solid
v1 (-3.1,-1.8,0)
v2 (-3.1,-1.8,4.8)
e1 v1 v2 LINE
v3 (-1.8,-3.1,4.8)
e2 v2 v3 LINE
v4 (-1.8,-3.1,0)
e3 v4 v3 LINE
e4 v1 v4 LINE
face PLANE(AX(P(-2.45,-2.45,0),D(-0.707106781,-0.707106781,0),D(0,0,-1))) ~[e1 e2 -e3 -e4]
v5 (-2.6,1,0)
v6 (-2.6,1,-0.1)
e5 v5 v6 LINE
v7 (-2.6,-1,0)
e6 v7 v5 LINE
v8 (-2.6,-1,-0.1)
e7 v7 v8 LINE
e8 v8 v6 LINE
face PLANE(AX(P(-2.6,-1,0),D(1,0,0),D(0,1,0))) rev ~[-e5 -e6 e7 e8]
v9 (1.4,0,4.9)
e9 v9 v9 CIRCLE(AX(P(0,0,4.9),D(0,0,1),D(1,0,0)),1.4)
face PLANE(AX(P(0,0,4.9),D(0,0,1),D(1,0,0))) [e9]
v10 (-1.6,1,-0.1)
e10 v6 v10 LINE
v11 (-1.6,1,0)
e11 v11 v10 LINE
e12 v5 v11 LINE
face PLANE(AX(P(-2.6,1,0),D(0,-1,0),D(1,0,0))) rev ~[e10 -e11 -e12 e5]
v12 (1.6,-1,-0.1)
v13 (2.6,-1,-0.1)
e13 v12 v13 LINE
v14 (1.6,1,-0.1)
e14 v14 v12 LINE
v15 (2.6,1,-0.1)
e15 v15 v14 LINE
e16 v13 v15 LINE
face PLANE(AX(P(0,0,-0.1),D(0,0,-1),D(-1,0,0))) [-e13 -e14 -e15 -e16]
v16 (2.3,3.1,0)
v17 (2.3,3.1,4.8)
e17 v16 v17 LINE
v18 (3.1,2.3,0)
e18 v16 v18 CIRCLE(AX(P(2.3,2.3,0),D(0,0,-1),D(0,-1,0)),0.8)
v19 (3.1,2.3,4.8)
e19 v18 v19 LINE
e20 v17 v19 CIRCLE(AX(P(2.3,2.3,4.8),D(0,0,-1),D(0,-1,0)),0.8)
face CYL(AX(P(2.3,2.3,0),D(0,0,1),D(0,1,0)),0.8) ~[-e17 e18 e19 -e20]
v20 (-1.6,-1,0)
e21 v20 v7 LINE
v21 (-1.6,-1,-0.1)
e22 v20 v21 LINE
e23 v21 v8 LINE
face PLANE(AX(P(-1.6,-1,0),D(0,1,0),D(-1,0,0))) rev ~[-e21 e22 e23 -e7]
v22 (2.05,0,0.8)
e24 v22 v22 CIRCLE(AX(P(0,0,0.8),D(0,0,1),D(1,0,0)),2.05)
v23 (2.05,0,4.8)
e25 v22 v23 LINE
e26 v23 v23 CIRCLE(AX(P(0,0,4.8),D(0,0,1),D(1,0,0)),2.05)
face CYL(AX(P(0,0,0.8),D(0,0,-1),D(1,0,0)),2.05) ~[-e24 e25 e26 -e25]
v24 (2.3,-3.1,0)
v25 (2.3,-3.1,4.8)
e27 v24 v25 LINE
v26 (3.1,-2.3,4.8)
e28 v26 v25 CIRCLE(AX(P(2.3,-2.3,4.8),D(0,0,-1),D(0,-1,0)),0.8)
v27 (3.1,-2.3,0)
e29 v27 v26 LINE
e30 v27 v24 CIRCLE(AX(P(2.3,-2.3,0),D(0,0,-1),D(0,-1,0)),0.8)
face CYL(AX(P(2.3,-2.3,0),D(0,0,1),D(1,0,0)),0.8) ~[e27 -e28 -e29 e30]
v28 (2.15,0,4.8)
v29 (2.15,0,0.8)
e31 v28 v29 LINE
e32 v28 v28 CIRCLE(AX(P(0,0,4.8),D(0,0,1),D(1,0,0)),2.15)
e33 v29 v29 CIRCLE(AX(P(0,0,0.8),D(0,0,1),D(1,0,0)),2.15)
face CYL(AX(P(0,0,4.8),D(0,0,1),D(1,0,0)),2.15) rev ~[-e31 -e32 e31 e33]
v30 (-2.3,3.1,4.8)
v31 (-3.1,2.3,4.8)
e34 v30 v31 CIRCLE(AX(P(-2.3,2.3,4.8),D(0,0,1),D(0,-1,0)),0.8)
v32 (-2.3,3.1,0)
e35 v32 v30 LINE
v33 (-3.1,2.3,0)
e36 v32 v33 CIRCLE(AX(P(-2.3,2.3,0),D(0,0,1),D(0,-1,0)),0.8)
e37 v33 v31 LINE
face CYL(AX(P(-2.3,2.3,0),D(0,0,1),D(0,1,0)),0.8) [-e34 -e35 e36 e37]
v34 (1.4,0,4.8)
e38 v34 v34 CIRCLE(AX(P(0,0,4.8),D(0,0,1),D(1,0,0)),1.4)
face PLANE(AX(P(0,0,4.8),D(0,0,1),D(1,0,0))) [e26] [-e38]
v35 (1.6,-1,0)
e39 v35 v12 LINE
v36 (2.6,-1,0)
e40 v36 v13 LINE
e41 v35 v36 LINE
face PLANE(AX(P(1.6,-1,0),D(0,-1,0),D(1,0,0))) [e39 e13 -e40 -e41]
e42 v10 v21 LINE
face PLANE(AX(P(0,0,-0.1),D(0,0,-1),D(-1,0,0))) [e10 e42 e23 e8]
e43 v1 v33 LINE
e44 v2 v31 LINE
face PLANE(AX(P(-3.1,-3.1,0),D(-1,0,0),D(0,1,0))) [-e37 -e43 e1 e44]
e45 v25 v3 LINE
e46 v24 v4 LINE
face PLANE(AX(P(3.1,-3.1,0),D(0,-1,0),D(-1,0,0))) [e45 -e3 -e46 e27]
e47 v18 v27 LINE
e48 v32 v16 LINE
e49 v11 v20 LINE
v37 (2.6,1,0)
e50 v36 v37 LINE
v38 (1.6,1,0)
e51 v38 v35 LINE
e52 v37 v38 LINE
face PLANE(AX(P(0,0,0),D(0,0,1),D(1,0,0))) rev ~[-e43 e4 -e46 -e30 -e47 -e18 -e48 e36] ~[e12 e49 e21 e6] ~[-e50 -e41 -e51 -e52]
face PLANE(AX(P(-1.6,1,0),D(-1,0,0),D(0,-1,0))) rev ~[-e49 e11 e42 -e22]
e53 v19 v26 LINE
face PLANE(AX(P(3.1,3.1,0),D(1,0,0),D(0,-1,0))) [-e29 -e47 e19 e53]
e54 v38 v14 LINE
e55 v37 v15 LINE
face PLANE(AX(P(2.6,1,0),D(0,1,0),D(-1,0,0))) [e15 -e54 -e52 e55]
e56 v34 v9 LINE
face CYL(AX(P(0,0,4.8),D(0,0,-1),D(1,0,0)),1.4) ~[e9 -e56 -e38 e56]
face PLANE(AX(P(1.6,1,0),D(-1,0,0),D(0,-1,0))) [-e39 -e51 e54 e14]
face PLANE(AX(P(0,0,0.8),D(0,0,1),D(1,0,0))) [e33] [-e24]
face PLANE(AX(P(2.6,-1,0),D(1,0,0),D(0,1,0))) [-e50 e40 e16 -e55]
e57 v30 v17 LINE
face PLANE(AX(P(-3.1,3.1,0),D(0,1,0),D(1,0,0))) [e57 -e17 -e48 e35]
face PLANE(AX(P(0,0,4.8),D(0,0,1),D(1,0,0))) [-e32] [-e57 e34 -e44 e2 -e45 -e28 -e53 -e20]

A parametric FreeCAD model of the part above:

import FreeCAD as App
import Part
import Sketcher
Q = App.Units.Quantity


def edges_at(feature, points):
    """Names of the edges that pass closest to the given points."""
    edges = feature.Shape.Edges
    near = lambda p: min(range(len(edges)), key=lambda i: edges[i].distToShape(Part.Vertex(*p))[0])
    return sorted({f"Edge{near(p) + 1}" for p in points})


def add_polygon(sketch, points):
    """Adds a closed chain of lines whose ends are joined by coincident constraints."""
    first, n = sketch.GeometryCount, len(points)
    for a, b in zip(points, points[1:] + points[:1]):
        sketch.addGeometry(Part.LineSegment(App.Vector(*a, 0), App.Vector(*b, 0)), False)
    for i in range(n):
        sketch.addConstraint(Sketcher.Constraint("Coincident", first + i, 2, first + (i + 1) % n, 1))

doc = App.newDocument("Part")
params = doc.addObject("Spreadsheet::Sheet", "Params")
for row, (alias, value) in enumerate([
    ("sketch1_width", "6.2 mm"),
    ("pad1_length", "4.8 mm"),
    ("fillet_radius", "0.8 mm"),
    ("chamfer_size", "1.3 mm"),
    ("sketch2_diameter", "4.3 mm"),
    ("pocket1_length", "4 mm"),
    ("sketch3_diameter", "4.1 mm"),
    ("pad2_length", "4 mm"),
    ("sketch4_diameter", "2.8 mm"),
    ("pad3_length", "0.1 mm"),
    ("sketch5_width", "1 mm"),
    ("sketch5_height", "2 mm"),
    ("pad4_length", "0.1 mm"),
], start=1):
    params.set(f"A{row}", alias)
    params.set(f"B{row}", "=" + value)
    params.setAlias(f"B{row}", alias)

body = doc.addObject("PartDesign::Body", "Body")

# Sketch on XY plane
sketch1 = doc.addObject("Sketcher::SketchObject", "Sketch")
body.addObject(sketch1)
sketch1.AttachmentSupport = (doc.XY_Plane, [""])
sketch1.MapMode = "FlatFace"
add_polygon(sketch1, [(3, 3), (-3, 3), (-3, -3), (3, -3)])  # lines 0-3
sketch1.addConstraint(Sketcher.Constraint("Horizontal", 0))
sketch1.addConstraint(Sketcher.Constraint("Vertical", 1))
sketch1.addConstraint(Sketcher.Constraint("Horizontal", 2))
sketch1.addConstraint(Sketcher.Constraint("Vertical", 3))
sketch1.addConstraint(Sketcher.Constraint("Symmetric", 0, 2, 2, 2, -1, 1))
sketch1.addConstraint(Sketcher.Constraint("Equal", 2, 1))
sketch1.addConstraint(Sketcher.Constraint("DistanceX", 0, 2, 0, 1, Q("6.2 mm")))
sketch1.setExpression("Constraints[10]", "Params.sketch1_width")
pad1 = doc.addObject("PartDesign::Pad", "Pad")
body.addObject(pad1)
pad1.Profile = sketch1
pad1.setExpression("Length", "Params.pad1_length")
doc.recompute()

fillet = doc.addObject("PartDesign::Fillet", "Fillet")
body.addObject(fillet)
fillet.Base = (pad1, edges_at(pad1, [(3.1, 3.1, 2.4), (3.1, -3.1, 2.4), (-3.1, 3.1, 2.4)]))
fillet.setExpression("Radius", "Params.fillet_radius")
doc.recompute()

chamfer = doc.addObject("PartDesign::Chamfer", "Chamfer")
body.addObject(chamfer)
chamfer.Base = (fillet, edges_at(fillet, [(-3.1, -3.1, 2.4)]))
chamfer.setExpression("Size", "Params.chamfer_size")

# Sketch on XY plane
sketch2 = doc.addObject("Sketcher::SketchObject", "Sketch001")
body.addObject(sketch2)
sketch2.AttachmentSupport = (doc.XY_Plane, [""])
sketch2.MapMode = "FlatFace"
sketch2.AttachmentOffset = App.Placement(App.Vector(0, 0, 4.8), App.Rotation())
sketch2.addGeometry(Part.Circle(App.Vector(0, 0, 0), App.Vector(0, 0, 1), 2.1), False)
sketch2.addConstraint(Sketcher.Constraint("Coincident", 0, 3, -1, 1))
sketch2.addConstraint(Sketcher.Constraint("Diameter", 0, Q("4.3 mm")))
sketch2.setExpression("Constraints[1]", "Params.sketch2_diameter")
pocket1 = doc.addObject("PartDesign::Pocket", "Pocket")
body.addObject(pocket1)
pocket1.Profile = sketch2
pocket1.setExpression("Length", "Params.pocket1_length")

# Sketch on XY plane
sketch3 = doc.addObject("Sketcher::SketchObject", "Sketch002")
body.addObject(sketch3)
sketch3.AttachmentSupport = (doc.XY_Plane, [""])
sketch3.MapMode = "FlatFace"
sketch3.AttachmentOffset = App.Placement(App.Vector(0, 0, 0.8), App.Rotation())
sketch3.addGeometry(Part.Circle(App.Vector(0, 0, 0), App.Vector(0, 0, 1), 2), False)
sketch3.addConstraint(Sketcher.Constraint("Coincident", 0, 3, -1, 1))
sketch3.addConstraint(Sketcher.Constraint("Diameter", 0, Q("4.1 mm")))
sketch3.setExpression("Constraints[1]", "Params.sketch3_diameter")
pad2 = doc.addObject("PartDesign::Pad", "Pad001")
body.addObject(pad2)
pad2.Profile = sketch3
pad2.setExpression("Length", "Params.pad2_length")

# Sketch on XY plane
sketch4 = doc.addObject("Sketcher::SketchObject", "Sketch003")
body.addObject(sketch4)
sketch4.AttachmentSupport = (doc.XY_Plane, [""])
sketch4.MapMode = "FlatFace"
sketch4.AttachmentOffset = App.Placement(App.Vector(0, 0, 4.8), App.Rotation())
sketch4.addGeometry(Part.Circle(App.Vector(0, 0, 0), App.Vector(0, 0, 1), 1.4), False)
sketch4.addConstraint(Sketcher.Constraint("Coincident", 0, 3, -1, 1))
sketch4.addConstraint(Sketcher.Constraint("Diameter", 0, Q("2.8 mm")))
sketch4.setExpression("Constraints[1]", "Params.sketch4_diameter")
pad3 = doc.addObject("PartDesign::Pad", "Pad002")
body.addObject(pad3)
pad3.Profile = sketch4
pad3.setExpression("Length", "Params.pad3_length")

# Sketch on XY plane
sketch5 = doc.addObject("Sketcher::SketchObject", "Sketch004")
body.addObject(sketch5)
sketch5.AttachmentSupport = (doc.XY_Plane, [""])
sketch5.MapMode = "FlatFace"
add_polygon(sketch5, [(2.6, -1), (1.6, -1), (1.6, 1), (2.6, 1)])  # lines 0-3
add_polygon(sketch5, [(-1.6, 1), (-1.6, -1), (-2.6, -1), (-2.6, 1)])  # lines 4-7
sketch5.addConstraint(Sketcher.Constraint("Horizontal", 0))
sketch5.addConstraint(Sketcher.Constraint("Vertical", 1))
sketch5.addConstraint(Sketcher.Constraint("Horizontal", 2))
sketch5.addConstraint(Sketcher.Constraint("Vertical", 3))
sketch5.addConstraint(Sketcher.Constraint("Vertical", 4))
sketch5.addConstraint(Sketcher.Constraint("Horizontal", 5))
sketch5.addConstraint(Sketcher.Constraint("Vertical", 6))
sketch5.addConstraint(Sketcher.Constraint("Horizontal", 7))
sketch5.addConstraint(Sketcher.Constraint("Symmetric", 1, 2, 4, 2, -1, 1))
sketch5.addConstraint(Sketcher.Constraint("Symmetric", 3, 2, 6, 2, -1, 1))
sketch5.addConstraint(Sketcher.Constraint("Horizontal", 3, 2, 4, 2))
sketch5.addConstraint(Sketcher.Constraint("DistanceX", 0, 2, 0, 1, Q("1 mm")))
sketch5.addConstraint(Sketcher.Constraint("DistanceY", 1, 1, 1, 2, Q("2 mm")))
sketch5.addConstraint(Sketcher.Constraint("DistanceX", -1, 1, 0, 2, Q("1.6 mm")))
sketch5.setExpression("Constraints[19]", "Params.sketch5_width")
sketch5.setExpression("Constraints[20]", "Params.sketch5_height")
pad4 = doc.addObject("PartDesign::Pad", "Pad003")
body.addObject(pad4)
pad4.Profile = sketch5
pad4.setExpression("Length", "Params.pad4_length")
pad4.Reversed = True

doc.recompute()
